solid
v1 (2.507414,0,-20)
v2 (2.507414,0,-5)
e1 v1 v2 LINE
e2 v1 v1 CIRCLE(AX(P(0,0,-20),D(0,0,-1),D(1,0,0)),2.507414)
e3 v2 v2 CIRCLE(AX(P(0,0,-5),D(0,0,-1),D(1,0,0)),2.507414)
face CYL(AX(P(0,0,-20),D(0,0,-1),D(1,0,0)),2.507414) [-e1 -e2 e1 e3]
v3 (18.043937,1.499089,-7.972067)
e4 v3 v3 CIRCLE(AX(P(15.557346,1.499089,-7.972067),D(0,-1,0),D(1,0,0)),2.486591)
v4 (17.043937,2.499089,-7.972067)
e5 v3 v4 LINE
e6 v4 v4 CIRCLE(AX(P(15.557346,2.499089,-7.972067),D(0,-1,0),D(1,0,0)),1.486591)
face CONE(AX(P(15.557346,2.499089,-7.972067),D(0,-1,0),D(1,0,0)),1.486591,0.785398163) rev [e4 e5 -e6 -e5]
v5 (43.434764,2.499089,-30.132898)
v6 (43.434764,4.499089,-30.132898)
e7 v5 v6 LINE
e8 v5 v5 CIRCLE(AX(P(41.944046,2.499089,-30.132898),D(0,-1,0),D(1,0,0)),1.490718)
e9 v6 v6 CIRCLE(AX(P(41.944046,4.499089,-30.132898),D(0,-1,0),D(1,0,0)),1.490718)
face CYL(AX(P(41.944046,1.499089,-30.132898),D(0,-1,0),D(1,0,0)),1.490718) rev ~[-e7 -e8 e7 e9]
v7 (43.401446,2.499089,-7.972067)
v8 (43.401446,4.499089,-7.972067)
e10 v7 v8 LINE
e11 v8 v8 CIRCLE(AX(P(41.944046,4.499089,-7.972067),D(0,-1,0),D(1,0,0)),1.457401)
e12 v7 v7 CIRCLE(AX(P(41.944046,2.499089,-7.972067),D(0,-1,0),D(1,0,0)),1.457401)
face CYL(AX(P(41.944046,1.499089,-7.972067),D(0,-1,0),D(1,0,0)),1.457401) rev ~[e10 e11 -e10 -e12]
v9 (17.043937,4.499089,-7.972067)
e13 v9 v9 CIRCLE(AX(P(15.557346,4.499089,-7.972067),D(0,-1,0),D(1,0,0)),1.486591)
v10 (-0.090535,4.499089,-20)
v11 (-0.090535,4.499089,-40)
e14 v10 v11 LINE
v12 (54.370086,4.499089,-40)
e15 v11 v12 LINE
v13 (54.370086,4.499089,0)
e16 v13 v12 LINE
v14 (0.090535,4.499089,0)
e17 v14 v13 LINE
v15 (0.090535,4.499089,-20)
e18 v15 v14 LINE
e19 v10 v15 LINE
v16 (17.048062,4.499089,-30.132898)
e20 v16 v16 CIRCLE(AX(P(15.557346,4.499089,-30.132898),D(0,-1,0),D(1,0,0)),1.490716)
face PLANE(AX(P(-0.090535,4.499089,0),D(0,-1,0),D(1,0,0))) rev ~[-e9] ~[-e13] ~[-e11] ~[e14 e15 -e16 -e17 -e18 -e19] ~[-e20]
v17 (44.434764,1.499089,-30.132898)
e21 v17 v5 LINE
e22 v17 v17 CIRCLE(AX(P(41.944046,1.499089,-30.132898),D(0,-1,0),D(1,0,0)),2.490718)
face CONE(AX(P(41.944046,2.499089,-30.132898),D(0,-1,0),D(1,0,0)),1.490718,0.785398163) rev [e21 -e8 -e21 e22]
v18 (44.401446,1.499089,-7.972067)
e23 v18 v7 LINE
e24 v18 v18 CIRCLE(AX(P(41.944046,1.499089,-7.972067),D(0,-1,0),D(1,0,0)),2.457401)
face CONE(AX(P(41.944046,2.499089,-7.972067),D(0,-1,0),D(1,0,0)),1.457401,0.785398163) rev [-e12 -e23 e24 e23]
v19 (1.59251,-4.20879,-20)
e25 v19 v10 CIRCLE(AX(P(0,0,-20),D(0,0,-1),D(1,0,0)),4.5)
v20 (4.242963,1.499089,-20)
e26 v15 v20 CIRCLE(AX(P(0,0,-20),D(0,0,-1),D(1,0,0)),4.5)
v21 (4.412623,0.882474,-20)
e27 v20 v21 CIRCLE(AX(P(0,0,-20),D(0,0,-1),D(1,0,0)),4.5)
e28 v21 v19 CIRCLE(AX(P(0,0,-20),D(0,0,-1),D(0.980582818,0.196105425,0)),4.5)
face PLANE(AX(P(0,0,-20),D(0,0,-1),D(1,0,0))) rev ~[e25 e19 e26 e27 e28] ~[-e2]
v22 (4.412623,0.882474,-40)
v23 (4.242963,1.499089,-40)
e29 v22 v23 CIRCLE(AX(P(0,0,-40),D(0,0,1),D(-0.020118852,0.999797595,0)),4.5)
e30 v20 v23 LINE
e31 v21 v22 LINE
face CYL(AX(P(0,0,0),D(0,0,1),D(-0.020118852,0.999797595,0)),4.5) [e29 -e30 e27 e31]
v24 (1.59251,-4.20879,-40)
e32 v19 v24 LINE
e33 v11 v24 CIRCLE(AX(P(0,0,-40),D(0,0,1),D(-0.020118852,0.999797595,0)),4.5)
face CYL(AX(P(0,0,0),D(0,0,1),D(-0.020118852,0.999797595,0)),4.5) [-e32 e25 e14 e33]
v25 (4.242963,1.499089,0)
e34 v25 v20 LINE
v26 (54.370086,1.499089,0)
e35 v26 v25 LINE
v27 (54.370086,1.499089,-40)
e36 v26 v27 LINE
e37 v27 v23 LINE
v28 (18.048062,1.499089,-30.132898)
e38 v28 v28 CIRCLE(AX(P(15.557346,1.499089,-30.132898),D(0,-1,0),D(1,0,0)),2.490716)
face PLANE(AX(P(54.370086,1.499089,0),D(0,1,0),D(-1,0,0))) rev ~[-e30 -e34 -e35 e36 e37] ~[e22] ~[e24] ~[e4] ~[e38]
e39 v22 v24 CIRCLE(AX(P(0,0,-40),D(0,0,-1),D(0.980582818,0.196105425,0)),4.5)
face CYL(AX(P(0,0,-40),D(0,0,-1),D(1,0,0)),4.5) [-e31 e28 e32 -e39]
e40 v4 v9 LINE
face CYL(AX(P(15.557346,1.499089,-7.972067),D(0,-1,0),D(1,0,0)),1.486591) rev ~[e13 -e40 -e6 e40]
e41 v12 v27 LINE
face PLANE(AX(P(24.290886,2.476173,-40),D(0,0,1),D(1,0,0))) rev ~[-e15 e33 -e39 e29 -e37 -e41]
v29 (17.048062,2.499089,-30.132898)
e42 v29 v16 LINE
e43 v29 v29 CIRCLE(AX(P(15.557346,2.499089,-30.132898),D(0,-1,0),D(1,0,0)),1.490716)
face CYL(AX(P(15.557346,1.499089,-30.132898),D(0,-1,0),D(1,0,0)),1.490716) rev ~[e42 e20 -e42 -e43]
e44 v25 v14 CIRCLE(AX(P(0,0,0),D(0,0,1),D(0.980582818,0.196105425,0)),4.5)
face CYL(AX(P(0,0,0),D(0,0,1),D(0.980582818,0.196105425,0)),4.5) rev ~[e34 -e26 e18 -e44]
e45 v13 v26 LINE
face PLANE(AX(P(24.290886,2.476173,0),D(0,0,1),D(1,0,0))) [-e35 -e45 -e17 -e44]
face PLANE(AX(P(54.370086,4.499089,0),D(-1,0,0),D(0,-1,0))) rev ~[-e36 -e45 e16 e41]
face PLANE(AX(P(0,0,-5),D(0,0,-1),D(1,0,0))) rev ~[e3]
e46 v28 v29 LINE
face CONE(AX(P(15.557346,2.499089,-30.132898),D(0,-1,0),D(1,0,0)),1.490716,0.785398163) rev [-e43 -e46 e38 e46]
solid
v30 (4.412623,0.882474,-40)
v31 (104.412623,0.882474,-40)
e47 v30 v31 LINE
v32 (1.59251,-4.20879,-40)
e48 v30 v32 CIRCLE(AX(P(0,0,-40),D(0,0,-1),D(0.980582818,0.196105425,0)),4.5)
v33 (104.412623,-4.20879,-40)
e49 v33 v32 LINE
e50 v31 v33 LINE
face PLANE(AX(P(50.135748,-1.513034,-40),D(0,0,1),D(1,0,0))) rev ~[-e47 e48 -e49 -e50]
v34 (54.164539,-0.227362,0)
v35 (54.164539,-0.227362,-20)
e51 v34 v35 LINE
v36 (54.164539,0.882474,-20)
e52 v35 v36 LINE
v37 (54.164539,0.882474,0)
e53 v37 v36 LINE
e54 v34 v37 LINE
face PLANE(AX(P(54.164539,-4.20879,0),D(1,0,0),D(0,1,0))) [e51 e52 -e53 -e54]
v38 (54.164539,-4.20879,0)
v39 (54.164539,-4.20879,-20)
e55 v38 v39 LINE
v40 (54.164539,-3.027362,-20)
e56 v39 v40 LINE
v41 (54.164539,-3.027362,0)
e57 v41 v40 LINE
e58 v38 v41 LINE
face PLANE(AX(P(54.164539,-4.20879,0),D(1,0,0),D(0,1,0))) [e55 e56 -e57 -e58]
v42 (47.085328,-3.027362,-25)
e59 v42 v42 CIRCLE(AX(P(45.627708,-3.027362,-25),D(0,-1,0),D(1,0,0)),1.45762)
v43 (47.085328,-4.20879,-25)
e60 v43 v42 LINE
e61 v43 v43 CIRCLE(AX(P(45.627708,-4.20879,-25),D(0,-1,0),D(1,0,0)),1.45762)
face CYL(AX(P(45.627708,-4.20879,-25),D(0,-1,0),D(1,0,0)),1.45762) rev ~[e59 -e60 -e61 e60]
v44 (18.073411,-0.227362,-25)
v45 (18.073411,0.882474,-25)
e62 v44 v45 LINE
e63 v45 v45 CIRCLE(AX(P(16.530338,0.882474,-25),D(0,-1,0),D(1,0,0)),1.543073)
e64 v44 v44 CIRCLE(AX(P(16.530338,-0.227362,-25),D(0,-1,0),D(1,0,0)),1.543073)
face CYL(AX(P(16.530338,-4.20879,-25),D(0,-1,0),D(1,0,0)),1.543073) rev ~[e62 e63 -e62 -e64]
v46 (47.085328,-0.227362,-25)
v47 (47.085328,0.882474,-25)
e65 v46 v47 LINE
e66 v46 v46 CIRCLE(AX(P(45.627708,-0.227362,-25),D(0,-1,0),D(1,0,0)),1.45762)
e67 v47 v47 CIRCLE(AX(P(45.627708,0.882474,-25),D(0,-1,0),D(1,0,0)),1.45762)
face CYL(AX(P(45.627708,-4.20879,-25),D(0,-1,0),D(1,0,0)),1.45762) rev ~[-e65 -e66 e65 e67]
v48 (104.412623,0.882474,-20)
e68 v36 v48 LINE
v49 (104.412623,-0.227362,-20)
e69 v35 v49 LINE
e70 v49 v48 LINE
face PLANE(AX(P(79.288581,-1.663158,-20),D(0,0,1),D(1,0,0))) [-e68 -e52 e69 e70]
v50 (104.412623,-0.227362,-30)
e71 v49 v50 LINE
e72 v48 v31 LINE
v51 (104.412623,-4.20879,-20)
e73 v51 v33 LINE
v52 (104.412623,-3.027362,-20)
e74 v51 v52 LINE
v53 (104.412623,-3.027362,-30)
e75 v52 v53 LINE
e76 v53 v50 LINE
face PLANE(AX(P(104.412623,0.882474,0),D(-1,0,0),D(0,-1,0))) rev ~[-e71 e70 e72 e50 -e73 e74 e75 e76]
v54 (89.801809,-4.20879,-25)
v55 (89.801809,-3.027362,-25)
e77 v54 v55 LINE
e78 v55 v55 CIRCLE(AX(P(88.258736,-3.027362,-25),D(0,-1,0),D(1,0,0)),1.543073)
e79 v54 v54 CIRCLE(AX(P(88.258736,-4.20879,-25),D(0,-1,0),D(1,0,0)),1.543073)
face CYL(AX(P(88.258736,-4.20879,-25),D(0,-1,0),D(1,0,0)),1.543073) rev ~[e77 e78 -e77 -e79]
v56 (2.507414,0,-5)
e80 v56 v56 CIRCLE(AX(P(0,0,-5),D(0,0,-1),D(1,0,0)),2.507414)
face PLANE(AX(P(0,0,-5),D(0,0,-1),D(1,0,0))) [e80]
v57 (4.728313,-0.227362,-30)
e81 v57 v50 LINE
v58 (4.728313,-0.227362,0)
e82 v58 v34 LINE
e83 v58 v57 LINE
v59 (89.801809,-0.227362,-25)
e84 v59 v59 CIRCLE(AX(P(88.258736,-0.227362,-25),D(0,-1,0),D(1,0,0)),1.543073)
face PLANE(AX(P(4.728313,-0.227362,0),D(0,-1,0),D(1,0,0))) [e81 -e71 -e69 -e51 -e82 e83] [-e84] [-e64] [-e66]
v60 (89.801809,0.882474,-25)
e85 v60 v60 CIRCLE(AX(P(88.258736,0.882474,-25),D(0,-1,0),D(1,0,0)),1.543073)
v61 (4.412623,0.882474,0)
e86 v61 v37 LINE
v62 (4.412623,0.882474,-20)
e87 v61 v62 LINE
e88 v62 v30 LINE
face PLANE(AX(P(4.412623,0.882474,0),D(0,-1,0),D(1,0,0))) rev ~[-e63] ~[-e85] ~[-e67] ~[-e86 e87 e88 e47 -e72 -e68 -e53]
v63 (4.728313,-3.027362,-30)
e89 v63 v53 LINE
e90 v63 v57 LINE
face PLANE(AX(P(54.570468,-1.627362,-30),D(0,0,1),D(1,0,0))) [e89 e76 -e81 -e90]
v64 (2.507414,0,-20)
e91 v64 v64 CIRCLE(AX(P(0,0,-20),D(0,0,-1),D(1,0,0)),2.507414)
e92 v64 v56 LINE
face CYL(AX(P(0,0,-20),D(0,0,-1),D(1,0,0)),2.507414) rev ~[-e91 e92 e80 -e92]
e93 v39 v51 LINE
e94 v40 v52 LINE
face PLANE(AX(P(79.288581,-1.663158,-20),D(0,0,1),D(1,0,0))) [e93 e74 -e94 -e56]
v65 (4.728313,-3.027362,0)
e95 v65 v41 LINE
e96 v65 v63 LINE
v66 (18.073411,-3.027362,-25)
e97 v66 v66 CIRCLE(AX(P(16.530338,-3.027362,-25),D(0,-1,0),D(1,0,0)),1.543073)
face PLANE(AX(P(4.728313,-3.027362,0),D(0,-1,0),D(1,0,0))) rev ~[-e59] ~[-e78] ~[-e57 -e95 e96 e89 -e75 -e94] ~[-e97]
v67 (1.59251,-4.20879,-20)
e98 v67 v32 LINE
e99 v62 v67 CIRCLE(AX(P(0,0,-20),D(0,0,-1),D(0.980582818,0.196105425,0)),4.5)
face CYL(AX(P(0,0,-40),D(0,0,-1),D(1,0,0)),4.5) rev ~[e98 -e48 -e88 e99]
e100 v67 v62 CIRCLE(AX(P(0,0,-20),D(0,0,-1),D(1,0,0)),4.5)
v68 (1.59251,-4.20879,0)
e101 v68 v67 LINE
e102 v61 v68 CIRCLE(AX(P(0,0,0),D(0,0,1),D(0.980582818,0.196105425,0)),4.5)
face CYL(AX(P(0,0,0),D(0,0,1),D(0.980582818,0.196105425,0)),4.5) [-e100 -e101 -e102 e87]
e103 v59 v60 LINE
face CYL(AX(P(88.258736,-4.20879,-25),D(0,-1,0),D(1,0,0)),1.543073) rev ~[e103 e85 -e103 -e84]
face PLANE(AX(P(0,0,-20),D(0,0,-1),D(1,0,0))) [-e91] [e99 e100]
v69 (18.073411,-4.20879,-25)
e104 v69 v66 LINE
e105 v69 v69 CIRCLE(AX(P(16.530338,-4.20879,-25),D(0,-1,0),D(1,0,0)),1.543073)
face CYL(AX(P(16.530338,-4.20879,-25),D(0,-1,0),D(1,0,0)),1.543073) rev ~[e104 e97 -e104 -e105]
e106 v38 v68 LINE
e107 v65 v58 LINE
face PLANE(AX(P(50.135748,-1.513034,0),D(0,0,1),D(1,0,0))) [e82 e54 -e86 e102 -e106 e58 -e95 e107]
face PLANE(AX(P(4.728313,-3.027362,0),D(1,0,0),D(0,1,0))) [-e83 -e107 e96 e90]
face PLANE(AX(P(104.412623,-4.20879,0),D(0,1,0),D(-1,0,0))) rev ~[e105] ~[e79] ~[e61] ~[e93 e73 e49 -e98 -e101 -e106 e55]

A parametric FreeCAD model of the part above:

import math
import FreeCAD as App
import Part
import Sketcher
Q = App.Units.Quantity


def edges_at(feature, points):
    """Names of the edges that pass closest to the given points."""
    edges = feature.Shape.Edges
    near = lambda p: min(range(len(edges)), key=lambda i: edges[i].distToShape(Part.Vertex(*p))[0])
    return sorted({f"Edge{near(p) + 1}" for p in points})


def add_polygon(sketch, points):
    """Adds a closed chain of lines whose ends are joined by coincident constraints."""
    first, n = sketch.GeometryCount, len(points)
    for a, b in zip(points, points[1:] + points[:1]):
        sketch.addGeometry(Part.LineSegment(App.Vector(*a, 0), App.Vector(*b, 0)), False)
    for i in range(n):
        sketch.addConstraint(Sketcher.Constraint("Coincident", first + i, 2, first + (i + 1) % n, 1))

doc = App.newDocument("Part")
params = doc.addObject("Spreadsheet::Sheet", "Params")
for row, (alias, value) in enumerate([
    ("sketch1_radius", "4.5 mm"),
    ("sketch1_width", "100 mm"),
    ("pad1_length", "40 mm"),
    ("sketch2_diameter", "9 mm"),
    ("pocket1_length", "20 mm"),
    ("pocket2_length", "15 mm"),
    ("pocket3_length", "20 mm"),
    ("sketch5_height", "2.8 mm"),
    ("pocket4_length", "30 mm"),
    ("sketch6_radius", "4.5 mm"),
    ("sketch6_height", "3 mm"),
    ("pad2_length", "40 mm"),
    ("chamfer_size", "1 mm"),
], start=1):
    params.set(f"A{row}", alias)
    params.set(f"B{row}", "=" + value)
    params.setAlias(f"B{row}", alias)

body = doc.addObject("PartDesign::Body", "Body")

# Sketch on XY plane
sketch1 = body.newObject("Sketcher::SketchObject", "Sketch")
sketch1.AttachmentSupport = (doc.getObject("XY_Plane"), [""])
sketch1.MapMode = "FlatFace"
sketch1.addGeometry(Part.ArcOfCircle(Part.Circle(App.Vector(0, 0, 0), App.Vector(0, 0, 1), 4.5), math.radians(11), math.radians(291)), False)
sketch1.addGeometry(Part.LineSegment(App.Vector(1.6, -4.2, 0), App.Vector(104.4, -4.2, 0)), False)
sketch1.addGeometry(Part.LineSegment(App.Vector(104.4, -4.2, 0), App.Vector(104.4, 0.9, 0)), False)
sketch1.addGeometry(Part.LineSegment(App.Vector(104.4, 0.9, 0), App.Vector(4.4, 0.9, 0)), False)
sketch1.addConstraint(Sketcher.Constraint("Coincident", 0, 2, 1, 1))
sketch1.addConstraint(Sketcher.Constraint("Coincident", 1, 2, 2, 1))
sketch1.addConstraint(Sketcher.Constraint("Coincident", 2, 2, 3, 1))
sketch1.addConstraint(Sketcher.Constraint("Coincident", 3, 2, 0, 1))
sketch1.addConstraint(Sketcher.Constraint("Horizontal", 1))
sketch1.addConstraint(Sketcher.Constraint("Vertical", 2))
sketch1.addConstraint(Sketcher.Constraint("Horizontal", 3))
sketch1.addConstraint(Sketcher.Constraint("Coincident", 0, 3, -1, 1))
sketch1.addConstraint(Sketcher.Constraint("Radius", 0, Q("4.5 mm")))
sketch1.addConstraint(Sketcher.Constraint("DistanceX", 3, 2, 3, 1, Q("100 mm")))
sketch1.addConstraint(Sketcher.Constraint("DistanceX", 1, 1, 1, 2, Q("102.820113 mm")))
sketch1.addConstraint(Sketcher.Constraint("DistanceY", 2, 1, 2, 2, Q("5.091264 mm")))
sketch1.setExpression("Constraints[8]", "Params.sketch1_radius")
sketch1.setExpression("Constraints[9]", "Params.sketch1_width")
pad1 = body.newObject("PartDesign::Pad", "Pad")
pad1.Profile = sketch1
pad1.setExpression("Length", "Params.pad1_length")
pad1.Reversed = True

# Sketch on XY plane
sketch2 = body.newObject("Sketcher::SketchObject", "Sketch001")
sketch2.AttachmentSupport = (doc.getObject("XY_Plane"), [""])
sketch2.MapMode = "FlatFace"
sketch2.AttachmentOffset = App.Placement(App.Vector(0, 0, -40), App.Rotation())
sketch2.addGeometry(Part.Circle(App.Vector(0, 0, 0), App.Vector(0, 0, 1), 4.5), False)
sketch2.addConstraint(Sketcher.Constraint("Coincident", 0, 3, -1, 1))
sketch2.addConstraint(Sketcher.Constraint("Diameter", 0, Q("9 mm")))
sketch2.setExpression("Constraints[1]", "Params.sketch2_diameter")
pocket1 = body.newObject("PartDesign::Pocket", "Pocket")
pocket1.Profile = sketch2
pocket1.setExpression("Length", "Params.pocket1_length")
pocket1.Reversed = True

# Sketch on XY plane
sketch3 = body.newObject("Sketcher::SketchObject", "Sketch002")
sketch3.AttachmentSupport = (doc.getObject("XY_Plane"), [""])
sketch3.MapMode = "FlatFace"
sketch3.AttachmentOffset = App.Placement(App.Vector(0, 0, -20), App.Rotation())
sketch3.addGeometry(Part.Circle(App.Vector(0, 0, 0), App.Vector(0, 0, 1), 2.5), False)
sketch3.addConstraint(Sketcher.Constraint("Coincident", 0, 3, -1, 1))
sketch3.addConstraint(Sketcher.Constraint("Diameter", 0, Q("5.014828 mm")))
pocket2 = body.newObject("PartDesign::Pocket", "Pocket001")
pocket2.Profile = sketch3
pocket2.setExpression("Length", "Params.pocket2_length")
pocket2.Reversed = True

# Sketch on XY plane
sketch4 = body.newObject("Sketcher::SketchObject", "Sketch003")
sketch4.AttachmentSupport = (doc.getObject("XY_Plane"), [""])
sketch4.MapMode = "FlatFace"
add_polygon(sketch4, [(54, 1), (54, -4), (104, -4), (104, 1)])  # lines 0-3
sketch4.addConstraint(Sketcher.Constraint("Vertical", 0))
sketch4.addConstraint(Sketcher.Constraint("Horizontal", 1))
sketch4.addConstraint(Sketcher.Constraint("Vertical", 2))
sketch4.addConstraint(Sketcher.Constraint("Horizontal", 3))
sketch4.addConstraint(Sketcher.Constraint("DistanceX", 1, 1, 1, 2, Q("50.248084 mm")))
sketch4.addConstraint(Sketcher.Constraint("DistanceY", 0, 2, 0, 1, Q("5.091264 mm")))
sketch4.addConstraint(Sketcher.Constraint("DistanceX", -1, 1, 0, 2, Q("54.164539 mm")))
sketch4.addConstraint(Sketcher.Constraint("DistanceY", 0, 2, -1, 1, Q("4.20879 mm")))
pocket3 = body.newObject("PartDesign::Pocket", "Pocket002")
pocket3.Profile = sketch4
pocket3.setExpression("Length", "Params.pocket3_length")

# Sketch on XY plane
sketch5 = body.newObject("Sketcher::SketchObject", "Sketch004")
sketch5.AttachmentSupport = (doc.getObject("XY_Plane"), [""])
sketch5.MapMode = "FlatFace"
add_polygon(sketch5, [(4.7, -0.2), (4.7, -3), (104.4, -3), (104.4, -0.2)])  # lines 0-3
sketch5.addConstraint(Sketcher.Constraint("Vertical", 0))
sketch5.addConstraint(Sketcher.Constraint("Horizontal", 1))
sketch5.addConstraint(Sketcher.Constraint("Vertical", 2))
sketch5.addConstraint(Sketcher.Constraint("Horizontal", 3))
sketch5.addConstraint(Sketcher.Constraint("DistanceY", 0, 2, 0, 1, Q("2.8 mm")))
sketch5.addConstraint(Sketcher.Constraint("DistanceX", 1, 1, 1, 2, Q("99.68431 mm")))
sketch5.addConstraint(Sketcher.Constraint("DistanceX", -1, 1, 0, 2, Q("4.728313 mm")))
sketch5.addConstraint(Sketcher.Constraint("DistanceY", 0, 2, -1, 1, Q("3.027362 mm")))
sketch5.setExpression("Constraints[8]", "Params.sketch5_height")
pocket4 = body.newObject("PartDesign::Pocket", "Pocket003")
pocket4.Profile = sketch5
pocket4.setExpression("Length", "Params.pocket4_length")
body2 = doc.addObject("PartDesign::Body", "Body001")

# Sketch on XY plane
sketch6 = body2.newObject("Sketcher::SketchObject", "Sketch005")
sketch6.AttachmentSupport = (doc.getObject("XY_Plane001"), [""])
sketch6.MapMode = "FlatFace"
sketch6.addGeometry(Part.ArcOfCircle(Part.Circle(App.Vector(0, 0, 0), App.Vector(0, 0, 1), 4.5), math.radians(91), math.radians(379)), False)
sketch6.addGeometry(Part.LineSegment(App.Vector(4.2, 1.5, 0), App.Vector(54.4, 1.5, 0)), False)
sketch6.addGeometry(Part.LineSegment(App.Vector(54.4, 1.5, 0), App.Vector(54.4, 4.5, 0)), False)
sketch6.addGeometry(Part.LineSegment(App.Vector(54.4, 4.5, 0), App.Vector(-0.1, 4.5, 0)), False)
sketch6.addConstraint(Sketcher.Constraint("Coincident", 0, 2, 1, 1))
sketch6.addConstraint(Sketcher.Constraint("Coincident", 1, 2, 2, 1))
sketch6.addConstraint(Sketcher.Constraint("Coincident", 2, 2, 3, 1))
sketch6.addConstraint(Sketcher.Constraint("Coincident", 3, 2, 0, 1))
sketch6.addConstraint(Sketcher.Constraint("Horizontal", 1))
sketch6.addConstraint(Sketcher.Constraint("Vertical", 2))
sketch6.addConstraint(Sketcher.Constraint("Horizontal", 3))
sketch6.addConstraint(Sketcher.Constraint("Coincident", 0, 3, -1, 1))
sketch6.addConstraint(Sketcher.Constraint("Radius", 0, Q("4.5 mm")))
sketch6.addConstraint(Sketcher.Constraint("DistanceY", 2, 1, 2, 2, Q("3 mm")))
sketch6.addConstraint(Sketcher.Constraint("DistanceX", 3, 2, 3, 1, Q("54.460621 mm")))
sketch6.addConstraint(Sketcher.Constraint("DistanceX", 1, 1, 1, 2, Q("50.127123 mm")))
sketch6.setExpression("Constraints[8]", "Params.sketch6_radius")
sketch6.setExpression("Constraints[9]", "Params.sketch6_height")
pad2 = body2.newObject("PartDesign::Pad", "Pad001")
pad2.Profile = sketch6
pad2.setExpression("Length", "Params.pad2_length")
pad2.Reversed = True
doc.recompute()

body3 = doc.addObject("PartDesign::Body", "Body002")
body3.BaseFeature = body
boolean = body2.newObject("PartDesign::Boolean", "Boolean")
boolean.Type = "Cut"
boolean.addObjects([body3])
doc.recompute()

# Sketch on XZ plane
sketch7 = body2.newObject("Sketcher::SketchObject", "Sketch006")
sketch7.AttachmentSupport = (doc.getObject("XZ_Plane001"), [""])
sketch7.MapMode = "FlatFace"
sketch7.AttachmentOffset = App.Placement(App.Vector(0, 0, -1.499089), App.Rotation())
sketch7.addGeometry(Part.Circle(App.Vector(15.6, -8, 0), App.Vector(0, 0, 1), 1.5), False)
sketch7.addGeometry(Part.Circle(App.Vector(41.9, -8, 0), App.Vector(0, 0, 1), 1.5), False)
sketch7.addGeometry(Part.Circle(App.Vector(15.6, -30.1, 0), App.Vector(0, 0, 1), 1.5), False)
sketch7.addGeometry(Part.Circle(App.Vector(41.9, -30.1, 0), App.Vector(0, 0, 1), 1.5), False)
sketch7.addConstraint(Sketcher.Constraint("Horizontal", 0, 3, 1, 3))
sketch7.addConstraint(Sketcher.Constraint("Horizontal", 2, 3, 3, 3))
sketch7.addConstraint(Sketcher.Constraint("Vertical", 0, 3, 2, 3))
sketch7.addConstraint(Sketcher.Constraint("Vertical", 1, 3, 3, 3))
sketch7.addConstraint(Sketcher.Constraint("Diameter", 1, Q("2.914802 mm")))
sketch7.addConstraint(Sketcher.Constraint("Diameter", 0, Q("2.973182 mm")))
sketch7.addConstraint(Sketcher.Constraint("Diameter", 2, Q("2.981432 mm")))
sketch7.addConstraint(Sketcher.Constraint("Diameter", 3, Q("2.981436 mm")))
sketch7.addConstraint(Sketcher.Constraint("DistanceY", 2, 3, -1, 1, Q("30.132898 mm")))
sketch7.addConstraint(Sketcher.Constraint("DistanceX", 0, 3, 1, 3, Q("26.386699 mm")))
sketch7.addConstraint(Sketcher.Constraint("DistanceY", 2, 3, 0, 3, Q("22.160831 mm")))
sketch7.addConstraint(Sketcher.Constraint("DistanceX", -1, 1, 0, 3, Q("15.557346 mm")))
pocket5 = body2.newObject("PartDesign::Pocket", "Pocket004")
pocket5.Profile = sketch7
pocket5.Type = "ThroughAll"
doc.recompute()

chamfer = body2.newObject("PartDesign::Chamfer", "Chamfer")
chamfer.Base = (pocket5, edges_at(pocket5, [
    (14.071, 1.499, -7.972),
    (40.487, 1.499, -7.972),
    (40.453, 1.499, -30.133),
    (14.067, 1.499, -30.133),
]))
chamfer.setExpression("Size", "Params.chamfer_size")

# Sketch on XZ plane
sketch8 = body.newObject("Sketcher::SketchObject", "Sketch007")
sketch8.AttachmentSupport = (doc.getObject("XZ_Plane"), [""])
sketch8.MapMode = "FlatFace"
sketch8.AttachmentOffset = App.Placement(App.Vector(0, 0, 4.20879), App.Rotation())
sketch8.addGeometry(Part.Circle(App.Vector(88.3, -25, 0), App.Vector(0, 0, 1), 1.5), False)
sketch8.addGeometry(Part.Circle(App.Vector(16.5, -25, 0), App.Vector(0, 0, 1), 1.5), False)
sketch8.addGeometry(Part.Circle(App.Vector(45.6, -25, 0), App.Vector(0, 0, 1), 1.5), False)
sketch8.addConstraint(Sketcher.Constraint("Equal", 0, 1))
sketch8.addConstraint(Sketcher.Constraint("Horizontal", 0, 3, 1, 3))
sketch8.addConstraint(Sketcher.Constraint("Horizontal", 1, 3, 2, 3))
sketch8.addConstraint(Sketcher.Constraint("DistanceY", 0, 3, -1, 1, Q("25 mm")))
sketch8.addConstraint(Sketcher.Constraint("Diameter", 2, Q("2.91524 mm")))
sketch8.addConstraint(Sketcher.Constraint("Diameter", 0, Q("3.086146 mm")))
sketch8.addConstraint(Sketcher.Constraint("DistanceX", 1, 3, 0, 3, Q("71.728398 mm")))
sketch8.addConstraint(Sketcher.Constraint("DistanceX", -1, 1, 1, 3, Q("16.530338 mm")))
sketch8.addConstraint(Sketcher.Constraint("DistanceX", 1, 3, 2, 3, Q("29.09737 mm")))
pocket6 = body.newObject("PartDesign::Pocket", "Pocket005")
pocket6.Profile = sketch8
pocket6.Type = "ThroughAll"

doc.recompute()
